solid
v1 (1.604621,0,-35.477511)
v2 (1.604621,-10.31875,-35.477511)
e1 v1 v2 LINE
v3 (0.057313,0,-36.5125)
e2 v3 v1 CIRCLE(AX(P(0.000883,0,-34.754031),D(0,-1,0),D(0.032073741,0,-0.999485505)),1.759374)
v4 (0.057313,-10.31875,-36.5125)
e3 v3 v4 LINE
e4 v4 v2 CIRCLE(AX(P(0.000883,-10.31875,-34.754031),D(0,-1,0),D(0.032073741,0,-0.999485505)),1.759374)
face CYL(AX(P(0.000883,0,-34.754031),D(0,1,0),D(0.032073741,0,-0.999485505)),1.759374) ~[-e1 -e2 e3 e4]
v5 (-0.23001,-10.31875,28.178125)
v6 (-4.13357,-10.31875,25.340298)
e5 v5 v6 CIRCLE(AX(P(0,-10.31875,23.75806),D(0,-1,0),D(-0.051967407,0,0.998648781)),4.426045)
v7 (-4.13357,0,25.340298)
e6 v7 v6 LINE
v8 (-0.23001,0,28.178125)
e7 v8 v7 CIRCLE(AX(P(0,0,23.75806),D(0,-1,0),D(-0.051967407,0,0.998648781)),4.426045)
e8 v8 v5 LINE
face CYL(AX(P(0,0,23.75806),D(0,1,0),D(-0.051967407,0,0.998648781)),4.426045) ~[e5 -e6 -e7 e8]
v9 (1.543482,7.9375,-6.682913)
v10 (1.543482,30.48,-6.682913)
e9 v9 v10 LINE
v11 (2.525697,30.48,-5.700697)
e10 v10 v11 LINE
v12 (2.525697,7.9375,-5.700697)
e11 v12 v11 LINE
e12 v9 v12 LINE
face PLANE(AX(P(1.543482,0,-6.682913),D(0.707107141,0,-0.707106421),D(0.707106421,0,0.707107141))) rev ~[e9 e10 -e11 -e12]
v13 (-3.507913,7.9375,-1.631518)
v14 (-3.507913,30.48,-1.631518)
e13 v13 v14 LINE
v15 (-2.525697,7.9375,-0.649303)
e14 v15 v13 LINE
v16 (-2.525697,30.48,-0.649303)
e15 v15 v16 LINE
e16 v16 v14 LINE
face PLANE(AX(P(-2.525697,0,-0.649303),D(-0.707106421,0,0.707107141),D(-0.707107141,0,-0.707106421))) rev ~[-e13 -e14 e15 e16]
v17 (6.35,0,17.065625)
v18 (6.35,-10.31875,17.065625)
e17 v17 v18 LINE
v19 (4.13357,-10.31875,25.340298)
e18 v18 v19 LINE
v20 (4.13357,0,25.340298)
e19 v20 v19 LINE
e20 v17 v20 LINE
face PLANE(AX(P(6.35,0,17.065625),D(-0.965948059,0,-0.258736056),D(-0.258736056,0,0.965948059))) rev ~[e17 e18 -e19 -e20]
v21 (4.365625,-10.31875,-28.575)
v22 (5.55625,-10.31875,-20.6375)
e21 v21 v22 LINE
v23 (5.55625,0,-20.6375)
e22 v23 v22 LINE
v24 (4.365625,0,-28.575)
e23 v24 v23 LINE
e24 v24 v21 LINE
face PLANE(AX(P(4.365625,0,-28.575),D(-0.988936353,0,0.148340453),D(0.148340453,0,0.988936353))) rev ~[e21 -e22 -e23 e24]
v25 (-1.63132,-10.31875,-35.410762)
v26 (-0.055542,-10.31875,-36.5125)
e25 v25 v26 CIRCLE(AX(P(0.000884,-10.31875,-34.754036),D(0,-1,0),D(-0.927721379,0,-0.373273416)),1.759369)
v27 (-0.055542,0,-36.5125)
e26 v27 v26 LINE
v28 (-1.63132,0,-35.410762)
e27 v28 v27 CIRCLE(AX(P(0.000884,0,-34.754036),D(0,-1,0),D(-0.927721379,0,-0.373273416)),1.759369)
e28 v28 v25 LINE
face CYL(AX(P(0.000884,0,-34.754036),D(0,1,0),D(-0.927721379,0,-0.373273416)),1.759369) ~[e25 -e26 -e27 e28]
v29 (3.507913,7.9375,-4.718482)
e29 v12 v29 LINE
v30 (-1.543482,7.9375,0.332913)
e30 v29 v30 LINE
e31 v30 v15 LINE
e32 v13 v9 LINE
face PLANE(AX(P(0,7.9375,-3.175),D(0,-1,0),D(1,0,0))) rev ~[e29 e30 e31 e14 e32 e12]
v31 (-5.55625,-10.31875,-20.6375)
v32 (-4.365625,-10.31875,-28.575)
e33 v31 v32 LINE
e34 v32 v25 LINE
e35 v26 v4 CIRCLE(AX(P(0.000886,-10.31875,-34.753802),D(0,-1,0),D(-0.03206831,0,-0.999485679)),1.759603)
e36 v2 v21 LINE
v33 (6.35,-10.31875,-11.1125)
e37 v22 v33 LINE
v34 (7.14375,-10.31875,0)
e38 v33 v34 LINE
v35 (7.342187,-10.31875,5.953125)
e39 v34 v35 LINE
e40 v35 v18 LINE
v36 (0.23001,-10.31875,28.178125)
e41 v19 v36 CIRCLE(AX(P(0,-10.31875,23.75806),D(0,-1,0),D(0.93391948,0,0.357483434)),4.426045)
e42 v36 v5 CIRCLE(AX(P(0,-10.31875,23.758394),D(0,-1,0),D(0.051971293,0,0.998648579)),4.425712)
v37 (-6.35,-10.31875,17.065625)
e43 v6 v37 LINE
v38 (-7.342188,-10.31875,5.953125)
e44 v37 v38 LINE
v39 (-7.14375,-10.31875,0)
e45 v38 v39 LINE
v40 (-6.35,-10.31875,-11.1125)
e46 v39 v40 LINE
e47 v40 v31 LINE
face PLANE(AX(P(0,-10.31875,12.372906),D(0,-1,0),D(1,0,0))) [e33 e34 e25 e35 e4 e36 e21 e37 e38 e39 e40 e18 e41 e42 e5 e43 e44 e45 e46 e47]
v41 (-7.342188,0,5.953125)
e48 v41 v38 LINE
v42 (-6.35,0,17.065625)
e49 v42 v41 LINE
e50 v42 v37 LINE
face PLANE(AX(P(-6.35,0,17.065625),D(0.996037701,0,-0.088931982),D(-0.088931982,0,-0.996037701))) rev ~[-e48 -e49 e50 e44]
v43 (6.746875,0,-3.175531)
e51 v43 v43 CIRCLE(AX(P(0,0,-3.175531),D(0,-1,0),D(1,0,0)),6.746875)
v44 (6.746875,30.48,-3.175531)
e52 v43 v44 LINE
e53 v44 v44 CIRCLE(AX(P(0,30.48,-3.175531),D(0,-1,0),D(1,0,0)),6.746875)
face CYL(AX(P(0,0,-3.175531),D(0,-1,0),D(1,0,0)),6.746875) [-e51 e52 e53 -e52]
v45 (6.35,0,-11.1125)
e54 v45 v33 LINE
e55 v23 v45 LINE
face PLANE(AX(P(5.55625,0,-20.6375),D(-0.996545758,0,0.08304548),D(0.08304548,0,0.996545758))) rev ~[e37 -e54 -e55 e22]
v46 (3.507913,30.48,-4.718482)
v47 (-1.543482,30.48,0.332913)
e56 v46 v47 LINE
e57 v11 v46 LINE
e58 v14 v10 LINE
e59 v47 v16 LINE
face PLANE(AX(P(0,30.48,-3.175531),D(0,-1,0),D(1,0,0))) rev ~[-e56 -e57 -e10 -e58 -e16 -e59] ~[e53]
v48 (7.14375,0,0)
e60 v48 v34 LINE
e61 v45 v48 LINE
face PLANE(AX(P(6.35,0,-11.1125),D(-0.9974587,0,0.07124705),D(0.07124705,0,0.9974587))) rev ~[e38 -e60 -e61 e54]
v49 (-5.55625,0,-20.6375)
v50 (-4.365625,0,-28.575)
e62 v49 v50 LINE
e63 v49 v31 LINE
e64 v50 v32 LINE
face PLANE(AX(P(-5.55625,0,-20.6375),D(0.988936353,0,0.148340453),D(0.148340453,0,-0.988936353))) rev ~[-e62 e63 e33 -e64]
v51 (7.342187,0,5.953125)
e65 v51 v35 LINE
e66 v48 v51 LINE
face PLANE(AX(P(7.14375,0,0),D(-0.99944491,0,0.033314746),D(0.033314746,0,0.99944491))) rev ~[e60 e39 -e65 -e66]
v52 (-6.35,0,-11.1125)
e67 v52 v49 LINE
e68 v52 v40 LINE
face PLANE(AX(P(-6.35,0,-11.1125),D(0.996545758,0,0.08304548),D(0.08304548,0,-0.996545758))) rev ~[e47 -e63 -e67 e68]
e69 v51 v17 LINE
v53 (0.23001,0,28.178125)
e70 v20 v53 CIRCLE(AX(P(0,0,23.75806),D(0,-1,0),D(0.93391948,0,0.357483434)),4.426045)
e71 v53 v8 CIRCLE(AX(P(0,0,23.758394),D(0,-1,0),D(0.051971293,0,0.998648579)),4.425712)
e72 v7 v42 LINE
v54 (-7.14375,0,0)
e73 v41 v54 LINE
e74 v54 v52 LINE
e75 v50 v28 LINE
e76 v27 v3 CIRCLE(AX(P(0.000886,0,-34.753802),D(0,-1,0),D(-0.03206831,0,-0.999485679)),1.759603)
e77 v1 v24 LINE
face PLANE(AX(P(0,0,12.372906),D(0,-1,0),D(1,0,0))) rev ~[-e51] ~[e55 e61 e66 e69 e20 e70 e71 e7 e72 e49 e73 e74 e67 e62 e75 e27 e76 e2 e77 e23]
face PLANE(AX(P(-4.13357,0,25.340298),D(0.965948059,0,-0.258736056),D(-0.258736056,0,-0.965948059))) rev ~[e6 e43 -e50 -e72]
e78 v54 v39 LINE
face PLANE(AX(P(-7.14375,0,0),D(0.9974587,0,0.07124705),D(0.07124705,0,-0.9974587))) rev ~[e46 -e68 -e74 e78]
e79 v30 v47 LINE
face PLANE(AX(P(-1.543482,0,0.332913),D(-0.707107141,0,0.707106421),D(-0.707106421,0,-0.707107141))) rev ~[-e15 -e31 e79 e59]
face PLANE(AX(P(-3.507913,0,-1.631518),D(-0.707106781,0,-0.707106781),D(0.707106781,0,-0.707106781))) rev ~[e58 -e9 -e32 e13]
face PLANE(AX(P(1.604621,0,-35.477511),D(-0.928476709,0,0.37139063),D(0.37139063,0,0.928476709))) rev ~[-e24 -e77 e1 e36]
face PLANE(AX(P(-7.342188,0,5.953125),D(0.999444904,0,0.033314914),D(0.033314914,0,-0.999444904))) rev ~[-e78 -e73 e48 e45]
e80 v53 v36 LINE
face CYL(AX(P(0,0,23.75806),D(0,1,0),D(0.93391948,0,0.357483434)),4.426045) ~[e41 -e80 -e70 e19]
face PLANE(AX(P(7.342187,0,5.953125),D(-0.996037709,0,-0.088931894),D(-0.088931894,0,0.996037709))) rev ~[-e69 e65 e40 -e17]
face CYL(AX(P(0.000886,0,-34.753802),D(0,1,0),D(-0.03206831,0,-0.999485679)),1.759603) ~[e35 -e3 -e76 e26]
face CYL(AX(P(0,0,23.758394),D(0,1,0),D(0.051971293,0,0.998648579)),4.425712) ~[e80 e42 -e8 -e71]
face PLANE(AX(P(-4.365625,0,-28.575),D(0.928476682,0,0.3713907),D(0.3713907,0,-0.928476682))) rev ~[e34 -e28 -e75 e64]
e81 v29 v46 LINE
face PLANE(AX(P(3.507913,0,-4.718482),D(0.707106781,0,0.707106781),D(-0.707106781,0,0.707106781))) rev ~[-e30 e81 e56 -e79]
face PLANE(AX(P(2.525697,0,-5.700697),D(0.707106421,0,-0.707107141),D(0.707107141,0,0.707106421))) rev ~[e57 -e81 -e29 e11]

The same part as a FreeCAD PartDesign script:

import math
import FreeCAD as App
import Part
import Sketcher

V = App.Vector
Q = App.Units.Quantity


def add_polygon(sketch, points):
    """Adds a closed chain of lines whose ends are joined by coincident constraints."""
    first, n = sketch.GeometryCount, len(points)
    for a, b in zip(points, points[1:] + points[:1]):
        sketch.addGeometry(Part.LineSegment(App.Vector(*a, 0), App.Vector(*b, 0)), False)
    for i in range(n):
        sketch.addConstraint(Sketcher.Constraint("Coincident", first + i, 2, first + (i + 1) % n, 1))

doc = App.newDocument("Part")
body = doc.addObject("PartDesign::Body", "Body")

# Sketch on XZ plane
sketch1 = body.newObject("Sketcher::SketchObject", "Sketch")
sketch1.AttachmentSupport = (doc.getObject("XZ_Plane"), [""])
sketch1.MapMode = "FlatFace"
sketch1.addGeometry([
    Part.LineSegment(V(-7.342188, 5.953125, 0), V(-7.14375, 0, 0)),  # 0
    Part.LineSegment(V(-7.14375, 0, 0), V(-6.35, -11.1125, 0)),  # 1
    Part.LineSegment(V(-6.35, -11.1125, 0), V(-5.55625, -20.6375, 0)),  # 2
    Part.LineSegment(V(-5.55625, -20.6375, 0), V(-4.365625, -28.575, 0)),  # 3
    Part.LineSegment(V(-4.365625, -28.575, 0), V(-1.63132, -35.410762, 0)),  # 4
    Part.ArcOfCircle(Part.Circle(V(0.000884, -34.754036, 0), V(0, 0, 1), 1.759369), math.radians(-158.08236), math.radians(-91.837885)),  # 5
    Part.ArcOfCircle(Part.Circle(V(0.000886, -34.753802, 0), V(0, 0, 1), 1.759603), math.radians(-91.837694), math.radians(-88.162306)),  # 6
    Part.ArcOfCircle(Part.Circle(V(0.000883, -34.754031, 0), V(0, 0, 1), 1.759374), math.radians(-88.161995), math.radians(-24.281149)),  # 7
    Part.LineSegment(V(1.604621, -35.477511, 0), V(4.365625, -28.575, 0)),  # 8
    Part.LineSegment(V(4.365625, -28.575, 0), V(5.55625, -20.6375, 0)),  # 9
    Part.LineSegment(V(5.55625, -20.6375, 0), V(6.35, -11.1125, 0)),  # 10
    Part.LineSegment(V(6.35, -11.1125, 0), V(7.14375, 0, 0)),  # 11
    Part.LineSegment(V(7.14375, 0, 0), V(7.342187, 5.953125, 0)),  # 12
    Part.LineSegment(V(7.342187, 5.953125, 0), V(6.35, 17.065625, 0)),  # 13
    Part.LineSegment(V(6.35, 17.065625, 0), V(4.13357, 25.340298, 0)),  # 14
    Part.ArcOfCircle(Part.Circle(V(0, 23.75806, 0), V(0, 0, 1), 4.426045), math.radians(20.945725), math.radians(87.021145)),  # 15
    Part.ArcOfCircle(Part.Circle(V(0, 23.758394, 0), V(0, 0, 1), 4.425712), math.radians(87.020922), math.radians(92.979078)),  # 16
    Part.ArcOfCircle(Part.Circle(V(0, 23.75806, 0), V(0, 0, 1), 4.426045), math.radians(92.978855), math.radians(159.054275)),  # 17
    Part.LineSegment(V(-4.13357, 25.340298, 0), V(-6.35, 17.065625, 0)),  # 18
    Part.LineSegment(V(-6.35, 17.065625, 0), V(-7.342188, 5.953125, 0)),  # 19
], False)
sketch1.addConstraint([
    Sketcher.Constraint("Coincident", 0, 2, 1, 1),
    Sketcher.Constraint("Coincident", 1, 2, 2, 1),
    Sketcher.Constraint("Coincident", 2, 2, 3, 1),
    Sketcher.Constraint("Coincident", 3, 2, 4, 1),
    Sketcher.Constraint("Coincident", 4, 2, 5, 1),
    Sketcher.Constraint("Coincident", 5, 2, 6, 1),
    Sketcher.Constraint("Coincident", 6, 2, 7, 1),
    Sketcher.Constraint("Coincident", 7, 2, 8, 1),
    Sketcher.Constraint("Coincident", 8, 2, 9, 1),
    Sketcher.Constraint("Coincident", 9, 2, 10, 1),
    Sketcher.Constraint("Coincident", 10, 2, 11, 1),
    Sketcher.Constraint("Coincident", 11, 2, 12, 1),
    Sketcher.Constraint("Coincident", 12, 2, 13, 1),
    Sketcher.Constraint("Coincident", 13, 2, 14, 1),
    Sketcher.Constraint("Coincident", 14, 2, 15, 1),
    Sketcher.Constraint("Coincident", 15, 2, 16, 1),
    Sketcher.Constraint("Coincident", 16, 2, 17, 1),
    Sketcher.Constraint("Coincident", 17, 2, 18, 1),
    Sketcher.Constraint("Coincident", 18, 2, 19, 1),
    Sketcher.Constraint("Coincident", 19, 2, 0, 1),
    Sketcher.Constraint("Coincident", 7, 3, 5, 3),
    Sketcher.Constraint("Coincident", 17, 3, 15, 3),
    Sketcher.Constraint("Equal", 15, 17),
    Sketcher.Constraint("Symmetric", 0, 2, 11, 2, -1, 1),
    Sketcher.Constraint("Symmetric", 3, 2, 8, 2, -2),
    Sketcher.Constraint("Symmetric", 2, 2, 9, 2, -2),
    Sketcher.Constraint("Symmetric", 1, 2, 10, 2, -2),
    Sketcher.Constraint("Symmetric", 15, 2, 16, 2, -2),
    Sketcher.Constraint("Symmetric", 13, 2, 18, 2, -2),
    Sketcher.Constraint("Symmetric", 12, 2, 19, 2, -2),
    Sketcher.Constraint("PointOnObject", 0, 2, -1),
    Sketcher.Constraint("Horizontal", 5, 2, 6, 2),
    Sketcher.Constraint("Horizontal", 14, 2, 17, 2),
    Sketcher.Constraint("Vertical", 5, 3, 6, 3),
    Sketcher.Constraint("Vertical", 10, 2, 13, 2),
    Sketcher.Constraint("DistanceX", 1, 2, 10, 2, Q("0.5 in")),
    Sketcher.Constraint("DistanceX", 2, 2, 11, 2, Q("0.5 in")),
    Sketcher.Constraint("DistanceX", 0, 2, -1, 1, Q("0.28125 in")),
    Sketcher.Constraint("DistanceY", 1, 2, -1, 1, Q("0.4375 in")),
    Sketcher.Constraint("DistanceY", 2, 2, -1, 1, Q("0.8125 in")),
    Sketcher.Constraint("DistanceX", 3, 2, -1, 1, Q("0.171875 in")),
    Sketcher.Constraint("DistanceY", 3, 2, -1, 1, Q("1.125 in")),
    Sketcher.Constraint("DistanceY", 5, 2, -1, 1, Q("1.4375 in")),
    Sketcher.Constraint("DistanceY", -1, 1, 12, 2, Q("0.234375 in")),
    Sketcher.Constraint("DistanceY", -1, 1, 13, 2, Q("0.671875 in")),
    Sketcher.Constraint("DistanceY", -1, 1, 15, 2, Q("1.109375 in")),
    Sketcher.Constraint("Radius", 5, 1.759369),
    Sketcher.Constraint("DistanceX", 19, 2, 12, 2, Q("0.578125 in")),
    Sketcher.Constraint("Radius", 6, 1.759603),
    Sketcher.Constraint("Radius", 15, 4.426045),
    Sketcher.Constraint("Radius", 16, 4.425712),
    Sketcher.Constraint("DistanceY", 6, 3, -1, 1, 34.753802),
    Sketcher.Constraint("DistanceY", -1, 1, 14, 2, 25.340298),
    Sketcher.Constraint("Distance", 4, 7.362341),
    Sketcher.Constraint("Distance", 8, 7.434232),
    Sketcher.Constraint("DistanceY", -1, 1, 15, 3, 23.75806),
    Sketcher.Constraint("DistanceX", 4, 2, -1, 1, 1.63132),
])
pad1 = body.newObject("PartDesign::Pad", "Pad")
pad1.Profile = sketch1
pad1.Length = Q("0.40625 in")

# Sketch on XZ plane
sketch2 = body.newObject("Sketcher::SketchObject", "Sketch001")
sketch2.AttachmentSupport = (doc.getObject("XZ_Plane"), [""])
sketch2.MapMode = "FlatFace"
sketch2.addGeometry(Part.Circle(V(0, -3.175531, 0), V(0, 0, 1), 6.746875), False)
sketch2.addConstraint([
    Sketcher.Constraint("PointOnObject", 0, 3, -2),
    Sketcher.Constraint("Diameter", 0, Q("0.53125 in")),
    Sketcher.Constraint("DistanceY", 0, 3, -1, 1, 3.175531),
])
pad2 = body.newObject("PartDesign::Pad", "Pad001")
pad2.Profile = sketch2
pad2.Length = Q("1.2 in")
pad2.Reversed = True

# Sketch on XZ plane
sketch3 = body.newObject("Sketcher::SketchObject", "Sketch002")
sketch3.AttachmentSupport = (doc.getObject("XZ_Plane"), [""])
sketch3.MapMode = "FlatFace"
add_polygon(sketch3, [(-1.543482, 0.332913), (-2.525697, -0.649303), (-3.507913, -1.631518), (1.543482, -6.682913), (2.525697, -5.700697), (3.507913, -4.718482)])  # lines 0-5
sketch3.addConstraint([
    Sketcher.Constraint("Parallel", 0, 1),
    Sketcher.Constraint("Perpendicular", 1, 2),
    Sketcher.Constraint("Perpendicular", 2, 3),
    Sketcher.Constraint("Parallel", 3, 4),
    Sketcher.Constraint("Perpendicular", 4, 5),
    Sketcher.Constraint("Equal", 0, 1),
    Sketcher.Constraint("Equal", 1, 3),
    Sketcher.Constraint("Angle", 2, Q("-45 deg")),
    Sketcher.Constraint("Distance", 2, Q("0.2812501 in")),
    Sketcher.Constraint("DistanceX", 0, 2, 2, 2, 4.069179),
    Sketcher.Constraint("DistanceX", 0, 2, -1, 1, 2.525697),
    Sketcher.Constraint("DistanceY", 0, 2, -1, 1, 0.649303),
])
pocket1 = body.newObject("PartDesign::Pocket", "Pocket")
pocket1.Profile = sketch3
pocket1.Length = Q("1.393 in")

# Sketch on XZ plane
sketch4 = body.newObject("Sketcher::SketchObject", "Sketch003")
sketch4.AttachmentSupport = (doc.getObject("XZ_Plane"), [""])
sketch4.MapMode = "FlatFace"
add_polygon(sketch4, [(-1.543482, 0.332913), (-2.525697, -0.649303), (-3.507913, -1.631518), (1.543482, -6.682913), (2.525697, -5.700697), (3.507913, -4.718482)])  # lines 0-5
sketch4.addConstraint([
    Sketcher.Constraint("Parallel", 0, 1),
    Sketcher.Constraint("Perpendicular", 1, 2),
    Sketcher.Constraint("Perpendicular", 2, 3),
    Sketcher.Constraint("Parallel", 3, 4),
    Sketcher.Constraint("Perpendicular", 4, 5),
    Sketcher.Constraint("Equal", 0, 1),
    Sketcher.Constraint("Equal", 1, 3),
    Sketcher.Constraint("Angle", 2, Q("-45 deg")),
    Sketcher.Constraint("Distance", 2, Q("0.2812501 in")),
    Sketcher.Constraint("DistanceX", 0, 2, 2, 2, 4.069179),
    Sketcher.Constraint("DistanceX", 0, 2, -1, 1, 2.525697),
    Sketcher.Constraint("DistanceY", 0, 2, -1, 1, 0.649303),
])
pad3 = body.newObject("PartDesign::Pad", "Pad002")
pad3.Profile = sketch4
pad3.Length = Q("0.3125 in")
pad3.Reversed = True

doc.recompute()
